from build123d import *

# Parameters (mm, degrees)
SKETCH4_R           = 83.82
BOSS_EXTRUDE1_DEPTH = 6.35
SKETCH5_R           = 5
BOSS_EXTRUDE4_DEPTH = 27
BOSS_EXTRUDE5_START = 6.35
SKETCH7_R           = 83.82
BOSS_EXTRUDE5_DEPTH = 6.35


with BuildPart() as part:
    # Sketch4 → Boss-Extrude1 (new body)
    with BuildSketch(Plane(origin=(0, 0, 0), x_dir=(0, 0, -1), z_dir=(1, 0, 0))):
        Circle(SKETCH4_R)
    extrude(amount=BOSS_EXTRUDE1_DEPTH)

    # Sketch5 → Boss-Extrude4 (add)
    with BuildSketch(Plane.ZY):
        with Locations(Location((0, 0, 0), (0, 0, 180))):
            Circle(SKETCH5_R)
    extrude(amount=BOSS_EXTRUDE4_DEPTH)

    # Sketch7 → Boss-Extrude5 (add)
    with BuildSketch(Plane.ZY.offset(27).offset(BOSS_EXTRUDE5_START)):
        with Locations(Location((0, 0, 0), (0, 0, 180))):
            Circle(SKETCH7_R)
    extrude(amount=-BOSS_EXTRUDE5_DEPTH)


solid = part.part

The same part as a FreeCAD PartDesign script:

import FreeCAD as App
import Part
import Sketcher

V = App.Vector

doc = App.newDocument("Part")
body = doc.addObject("PartDesign::Body", "Body")

# Sketch on YZ plane
sketch1 = body.newObject("Sketcher::SketchObject", "Sketch")
sketch1.AttachmentSupport = (doc.getObject("YZ_Plane"), [""])
sketch1.MapMode = "FlatFace"
sketch1.addGeometry(Part.Circle(V(0, 0, 0), V(0, 0, 1), 84), False)
sketch1.addConstraint([
    Sketcher.Constraint("Coincident", 0, 3, -1, 1),
    Sketcher.Constraint("Diameter", 0, 167.64),
])
pad1 = body.newObject("PartDesign::Pad", "Pad")
pad1.Profile = sketch1
pad1.Length = 6.35

# Sketch on YZ plane
sketch2 = body.newObject("Sketcher::SketchObject", "Sketch001")
sketch2.AttachmentSupport = (doc.getObject("YZ_Plane"), [""])
sketch2.MapMode = "FlatFace"
sketch2.addGeometry(Part.Circle(V(0, 0, 0), V(0, 0, 1), 5), False)
sketch2.addConstraint([
    Sketcher.Constraint("Coincident", 0, 3, -1, 1),
    Sketcher.Constraint("Diameter", 0, 10.0),
])
pad2 = body.newObject("PartDesign::Pad", "Pad001")
pad2.Profile = sketch2
pad2.Length = 27
pad2.Reversed = True

# Sketch on YZ plane
sketch3 = body.newObject("Sketcher::SketchObject", "Sketch002")
sketch3.AttachmentSupport = (doc.getObject("YZ_Plane"), [""])
sketch3.MapMode = "FlatFace"
sketch3.AttachmentOffset = App.Placement(V(0, 0, -33.35), App.Rotation())
sketch3.addGeometry(Part.Circle(V(0, 0, 0), V(0, 0, 1), 84), False)
sketch3.addConstraint([
    Sketcher.Constraint("Coincident", 0, 3, -1, 1),
    Sketcher.Constraint("Diameter", 0, 167.64),
])
pad3 = body.newObject("PartDesign::Pad", "Pad002")
pad3.Profile = sketch3
pad3.Length = 6.35

doc.recompute()
